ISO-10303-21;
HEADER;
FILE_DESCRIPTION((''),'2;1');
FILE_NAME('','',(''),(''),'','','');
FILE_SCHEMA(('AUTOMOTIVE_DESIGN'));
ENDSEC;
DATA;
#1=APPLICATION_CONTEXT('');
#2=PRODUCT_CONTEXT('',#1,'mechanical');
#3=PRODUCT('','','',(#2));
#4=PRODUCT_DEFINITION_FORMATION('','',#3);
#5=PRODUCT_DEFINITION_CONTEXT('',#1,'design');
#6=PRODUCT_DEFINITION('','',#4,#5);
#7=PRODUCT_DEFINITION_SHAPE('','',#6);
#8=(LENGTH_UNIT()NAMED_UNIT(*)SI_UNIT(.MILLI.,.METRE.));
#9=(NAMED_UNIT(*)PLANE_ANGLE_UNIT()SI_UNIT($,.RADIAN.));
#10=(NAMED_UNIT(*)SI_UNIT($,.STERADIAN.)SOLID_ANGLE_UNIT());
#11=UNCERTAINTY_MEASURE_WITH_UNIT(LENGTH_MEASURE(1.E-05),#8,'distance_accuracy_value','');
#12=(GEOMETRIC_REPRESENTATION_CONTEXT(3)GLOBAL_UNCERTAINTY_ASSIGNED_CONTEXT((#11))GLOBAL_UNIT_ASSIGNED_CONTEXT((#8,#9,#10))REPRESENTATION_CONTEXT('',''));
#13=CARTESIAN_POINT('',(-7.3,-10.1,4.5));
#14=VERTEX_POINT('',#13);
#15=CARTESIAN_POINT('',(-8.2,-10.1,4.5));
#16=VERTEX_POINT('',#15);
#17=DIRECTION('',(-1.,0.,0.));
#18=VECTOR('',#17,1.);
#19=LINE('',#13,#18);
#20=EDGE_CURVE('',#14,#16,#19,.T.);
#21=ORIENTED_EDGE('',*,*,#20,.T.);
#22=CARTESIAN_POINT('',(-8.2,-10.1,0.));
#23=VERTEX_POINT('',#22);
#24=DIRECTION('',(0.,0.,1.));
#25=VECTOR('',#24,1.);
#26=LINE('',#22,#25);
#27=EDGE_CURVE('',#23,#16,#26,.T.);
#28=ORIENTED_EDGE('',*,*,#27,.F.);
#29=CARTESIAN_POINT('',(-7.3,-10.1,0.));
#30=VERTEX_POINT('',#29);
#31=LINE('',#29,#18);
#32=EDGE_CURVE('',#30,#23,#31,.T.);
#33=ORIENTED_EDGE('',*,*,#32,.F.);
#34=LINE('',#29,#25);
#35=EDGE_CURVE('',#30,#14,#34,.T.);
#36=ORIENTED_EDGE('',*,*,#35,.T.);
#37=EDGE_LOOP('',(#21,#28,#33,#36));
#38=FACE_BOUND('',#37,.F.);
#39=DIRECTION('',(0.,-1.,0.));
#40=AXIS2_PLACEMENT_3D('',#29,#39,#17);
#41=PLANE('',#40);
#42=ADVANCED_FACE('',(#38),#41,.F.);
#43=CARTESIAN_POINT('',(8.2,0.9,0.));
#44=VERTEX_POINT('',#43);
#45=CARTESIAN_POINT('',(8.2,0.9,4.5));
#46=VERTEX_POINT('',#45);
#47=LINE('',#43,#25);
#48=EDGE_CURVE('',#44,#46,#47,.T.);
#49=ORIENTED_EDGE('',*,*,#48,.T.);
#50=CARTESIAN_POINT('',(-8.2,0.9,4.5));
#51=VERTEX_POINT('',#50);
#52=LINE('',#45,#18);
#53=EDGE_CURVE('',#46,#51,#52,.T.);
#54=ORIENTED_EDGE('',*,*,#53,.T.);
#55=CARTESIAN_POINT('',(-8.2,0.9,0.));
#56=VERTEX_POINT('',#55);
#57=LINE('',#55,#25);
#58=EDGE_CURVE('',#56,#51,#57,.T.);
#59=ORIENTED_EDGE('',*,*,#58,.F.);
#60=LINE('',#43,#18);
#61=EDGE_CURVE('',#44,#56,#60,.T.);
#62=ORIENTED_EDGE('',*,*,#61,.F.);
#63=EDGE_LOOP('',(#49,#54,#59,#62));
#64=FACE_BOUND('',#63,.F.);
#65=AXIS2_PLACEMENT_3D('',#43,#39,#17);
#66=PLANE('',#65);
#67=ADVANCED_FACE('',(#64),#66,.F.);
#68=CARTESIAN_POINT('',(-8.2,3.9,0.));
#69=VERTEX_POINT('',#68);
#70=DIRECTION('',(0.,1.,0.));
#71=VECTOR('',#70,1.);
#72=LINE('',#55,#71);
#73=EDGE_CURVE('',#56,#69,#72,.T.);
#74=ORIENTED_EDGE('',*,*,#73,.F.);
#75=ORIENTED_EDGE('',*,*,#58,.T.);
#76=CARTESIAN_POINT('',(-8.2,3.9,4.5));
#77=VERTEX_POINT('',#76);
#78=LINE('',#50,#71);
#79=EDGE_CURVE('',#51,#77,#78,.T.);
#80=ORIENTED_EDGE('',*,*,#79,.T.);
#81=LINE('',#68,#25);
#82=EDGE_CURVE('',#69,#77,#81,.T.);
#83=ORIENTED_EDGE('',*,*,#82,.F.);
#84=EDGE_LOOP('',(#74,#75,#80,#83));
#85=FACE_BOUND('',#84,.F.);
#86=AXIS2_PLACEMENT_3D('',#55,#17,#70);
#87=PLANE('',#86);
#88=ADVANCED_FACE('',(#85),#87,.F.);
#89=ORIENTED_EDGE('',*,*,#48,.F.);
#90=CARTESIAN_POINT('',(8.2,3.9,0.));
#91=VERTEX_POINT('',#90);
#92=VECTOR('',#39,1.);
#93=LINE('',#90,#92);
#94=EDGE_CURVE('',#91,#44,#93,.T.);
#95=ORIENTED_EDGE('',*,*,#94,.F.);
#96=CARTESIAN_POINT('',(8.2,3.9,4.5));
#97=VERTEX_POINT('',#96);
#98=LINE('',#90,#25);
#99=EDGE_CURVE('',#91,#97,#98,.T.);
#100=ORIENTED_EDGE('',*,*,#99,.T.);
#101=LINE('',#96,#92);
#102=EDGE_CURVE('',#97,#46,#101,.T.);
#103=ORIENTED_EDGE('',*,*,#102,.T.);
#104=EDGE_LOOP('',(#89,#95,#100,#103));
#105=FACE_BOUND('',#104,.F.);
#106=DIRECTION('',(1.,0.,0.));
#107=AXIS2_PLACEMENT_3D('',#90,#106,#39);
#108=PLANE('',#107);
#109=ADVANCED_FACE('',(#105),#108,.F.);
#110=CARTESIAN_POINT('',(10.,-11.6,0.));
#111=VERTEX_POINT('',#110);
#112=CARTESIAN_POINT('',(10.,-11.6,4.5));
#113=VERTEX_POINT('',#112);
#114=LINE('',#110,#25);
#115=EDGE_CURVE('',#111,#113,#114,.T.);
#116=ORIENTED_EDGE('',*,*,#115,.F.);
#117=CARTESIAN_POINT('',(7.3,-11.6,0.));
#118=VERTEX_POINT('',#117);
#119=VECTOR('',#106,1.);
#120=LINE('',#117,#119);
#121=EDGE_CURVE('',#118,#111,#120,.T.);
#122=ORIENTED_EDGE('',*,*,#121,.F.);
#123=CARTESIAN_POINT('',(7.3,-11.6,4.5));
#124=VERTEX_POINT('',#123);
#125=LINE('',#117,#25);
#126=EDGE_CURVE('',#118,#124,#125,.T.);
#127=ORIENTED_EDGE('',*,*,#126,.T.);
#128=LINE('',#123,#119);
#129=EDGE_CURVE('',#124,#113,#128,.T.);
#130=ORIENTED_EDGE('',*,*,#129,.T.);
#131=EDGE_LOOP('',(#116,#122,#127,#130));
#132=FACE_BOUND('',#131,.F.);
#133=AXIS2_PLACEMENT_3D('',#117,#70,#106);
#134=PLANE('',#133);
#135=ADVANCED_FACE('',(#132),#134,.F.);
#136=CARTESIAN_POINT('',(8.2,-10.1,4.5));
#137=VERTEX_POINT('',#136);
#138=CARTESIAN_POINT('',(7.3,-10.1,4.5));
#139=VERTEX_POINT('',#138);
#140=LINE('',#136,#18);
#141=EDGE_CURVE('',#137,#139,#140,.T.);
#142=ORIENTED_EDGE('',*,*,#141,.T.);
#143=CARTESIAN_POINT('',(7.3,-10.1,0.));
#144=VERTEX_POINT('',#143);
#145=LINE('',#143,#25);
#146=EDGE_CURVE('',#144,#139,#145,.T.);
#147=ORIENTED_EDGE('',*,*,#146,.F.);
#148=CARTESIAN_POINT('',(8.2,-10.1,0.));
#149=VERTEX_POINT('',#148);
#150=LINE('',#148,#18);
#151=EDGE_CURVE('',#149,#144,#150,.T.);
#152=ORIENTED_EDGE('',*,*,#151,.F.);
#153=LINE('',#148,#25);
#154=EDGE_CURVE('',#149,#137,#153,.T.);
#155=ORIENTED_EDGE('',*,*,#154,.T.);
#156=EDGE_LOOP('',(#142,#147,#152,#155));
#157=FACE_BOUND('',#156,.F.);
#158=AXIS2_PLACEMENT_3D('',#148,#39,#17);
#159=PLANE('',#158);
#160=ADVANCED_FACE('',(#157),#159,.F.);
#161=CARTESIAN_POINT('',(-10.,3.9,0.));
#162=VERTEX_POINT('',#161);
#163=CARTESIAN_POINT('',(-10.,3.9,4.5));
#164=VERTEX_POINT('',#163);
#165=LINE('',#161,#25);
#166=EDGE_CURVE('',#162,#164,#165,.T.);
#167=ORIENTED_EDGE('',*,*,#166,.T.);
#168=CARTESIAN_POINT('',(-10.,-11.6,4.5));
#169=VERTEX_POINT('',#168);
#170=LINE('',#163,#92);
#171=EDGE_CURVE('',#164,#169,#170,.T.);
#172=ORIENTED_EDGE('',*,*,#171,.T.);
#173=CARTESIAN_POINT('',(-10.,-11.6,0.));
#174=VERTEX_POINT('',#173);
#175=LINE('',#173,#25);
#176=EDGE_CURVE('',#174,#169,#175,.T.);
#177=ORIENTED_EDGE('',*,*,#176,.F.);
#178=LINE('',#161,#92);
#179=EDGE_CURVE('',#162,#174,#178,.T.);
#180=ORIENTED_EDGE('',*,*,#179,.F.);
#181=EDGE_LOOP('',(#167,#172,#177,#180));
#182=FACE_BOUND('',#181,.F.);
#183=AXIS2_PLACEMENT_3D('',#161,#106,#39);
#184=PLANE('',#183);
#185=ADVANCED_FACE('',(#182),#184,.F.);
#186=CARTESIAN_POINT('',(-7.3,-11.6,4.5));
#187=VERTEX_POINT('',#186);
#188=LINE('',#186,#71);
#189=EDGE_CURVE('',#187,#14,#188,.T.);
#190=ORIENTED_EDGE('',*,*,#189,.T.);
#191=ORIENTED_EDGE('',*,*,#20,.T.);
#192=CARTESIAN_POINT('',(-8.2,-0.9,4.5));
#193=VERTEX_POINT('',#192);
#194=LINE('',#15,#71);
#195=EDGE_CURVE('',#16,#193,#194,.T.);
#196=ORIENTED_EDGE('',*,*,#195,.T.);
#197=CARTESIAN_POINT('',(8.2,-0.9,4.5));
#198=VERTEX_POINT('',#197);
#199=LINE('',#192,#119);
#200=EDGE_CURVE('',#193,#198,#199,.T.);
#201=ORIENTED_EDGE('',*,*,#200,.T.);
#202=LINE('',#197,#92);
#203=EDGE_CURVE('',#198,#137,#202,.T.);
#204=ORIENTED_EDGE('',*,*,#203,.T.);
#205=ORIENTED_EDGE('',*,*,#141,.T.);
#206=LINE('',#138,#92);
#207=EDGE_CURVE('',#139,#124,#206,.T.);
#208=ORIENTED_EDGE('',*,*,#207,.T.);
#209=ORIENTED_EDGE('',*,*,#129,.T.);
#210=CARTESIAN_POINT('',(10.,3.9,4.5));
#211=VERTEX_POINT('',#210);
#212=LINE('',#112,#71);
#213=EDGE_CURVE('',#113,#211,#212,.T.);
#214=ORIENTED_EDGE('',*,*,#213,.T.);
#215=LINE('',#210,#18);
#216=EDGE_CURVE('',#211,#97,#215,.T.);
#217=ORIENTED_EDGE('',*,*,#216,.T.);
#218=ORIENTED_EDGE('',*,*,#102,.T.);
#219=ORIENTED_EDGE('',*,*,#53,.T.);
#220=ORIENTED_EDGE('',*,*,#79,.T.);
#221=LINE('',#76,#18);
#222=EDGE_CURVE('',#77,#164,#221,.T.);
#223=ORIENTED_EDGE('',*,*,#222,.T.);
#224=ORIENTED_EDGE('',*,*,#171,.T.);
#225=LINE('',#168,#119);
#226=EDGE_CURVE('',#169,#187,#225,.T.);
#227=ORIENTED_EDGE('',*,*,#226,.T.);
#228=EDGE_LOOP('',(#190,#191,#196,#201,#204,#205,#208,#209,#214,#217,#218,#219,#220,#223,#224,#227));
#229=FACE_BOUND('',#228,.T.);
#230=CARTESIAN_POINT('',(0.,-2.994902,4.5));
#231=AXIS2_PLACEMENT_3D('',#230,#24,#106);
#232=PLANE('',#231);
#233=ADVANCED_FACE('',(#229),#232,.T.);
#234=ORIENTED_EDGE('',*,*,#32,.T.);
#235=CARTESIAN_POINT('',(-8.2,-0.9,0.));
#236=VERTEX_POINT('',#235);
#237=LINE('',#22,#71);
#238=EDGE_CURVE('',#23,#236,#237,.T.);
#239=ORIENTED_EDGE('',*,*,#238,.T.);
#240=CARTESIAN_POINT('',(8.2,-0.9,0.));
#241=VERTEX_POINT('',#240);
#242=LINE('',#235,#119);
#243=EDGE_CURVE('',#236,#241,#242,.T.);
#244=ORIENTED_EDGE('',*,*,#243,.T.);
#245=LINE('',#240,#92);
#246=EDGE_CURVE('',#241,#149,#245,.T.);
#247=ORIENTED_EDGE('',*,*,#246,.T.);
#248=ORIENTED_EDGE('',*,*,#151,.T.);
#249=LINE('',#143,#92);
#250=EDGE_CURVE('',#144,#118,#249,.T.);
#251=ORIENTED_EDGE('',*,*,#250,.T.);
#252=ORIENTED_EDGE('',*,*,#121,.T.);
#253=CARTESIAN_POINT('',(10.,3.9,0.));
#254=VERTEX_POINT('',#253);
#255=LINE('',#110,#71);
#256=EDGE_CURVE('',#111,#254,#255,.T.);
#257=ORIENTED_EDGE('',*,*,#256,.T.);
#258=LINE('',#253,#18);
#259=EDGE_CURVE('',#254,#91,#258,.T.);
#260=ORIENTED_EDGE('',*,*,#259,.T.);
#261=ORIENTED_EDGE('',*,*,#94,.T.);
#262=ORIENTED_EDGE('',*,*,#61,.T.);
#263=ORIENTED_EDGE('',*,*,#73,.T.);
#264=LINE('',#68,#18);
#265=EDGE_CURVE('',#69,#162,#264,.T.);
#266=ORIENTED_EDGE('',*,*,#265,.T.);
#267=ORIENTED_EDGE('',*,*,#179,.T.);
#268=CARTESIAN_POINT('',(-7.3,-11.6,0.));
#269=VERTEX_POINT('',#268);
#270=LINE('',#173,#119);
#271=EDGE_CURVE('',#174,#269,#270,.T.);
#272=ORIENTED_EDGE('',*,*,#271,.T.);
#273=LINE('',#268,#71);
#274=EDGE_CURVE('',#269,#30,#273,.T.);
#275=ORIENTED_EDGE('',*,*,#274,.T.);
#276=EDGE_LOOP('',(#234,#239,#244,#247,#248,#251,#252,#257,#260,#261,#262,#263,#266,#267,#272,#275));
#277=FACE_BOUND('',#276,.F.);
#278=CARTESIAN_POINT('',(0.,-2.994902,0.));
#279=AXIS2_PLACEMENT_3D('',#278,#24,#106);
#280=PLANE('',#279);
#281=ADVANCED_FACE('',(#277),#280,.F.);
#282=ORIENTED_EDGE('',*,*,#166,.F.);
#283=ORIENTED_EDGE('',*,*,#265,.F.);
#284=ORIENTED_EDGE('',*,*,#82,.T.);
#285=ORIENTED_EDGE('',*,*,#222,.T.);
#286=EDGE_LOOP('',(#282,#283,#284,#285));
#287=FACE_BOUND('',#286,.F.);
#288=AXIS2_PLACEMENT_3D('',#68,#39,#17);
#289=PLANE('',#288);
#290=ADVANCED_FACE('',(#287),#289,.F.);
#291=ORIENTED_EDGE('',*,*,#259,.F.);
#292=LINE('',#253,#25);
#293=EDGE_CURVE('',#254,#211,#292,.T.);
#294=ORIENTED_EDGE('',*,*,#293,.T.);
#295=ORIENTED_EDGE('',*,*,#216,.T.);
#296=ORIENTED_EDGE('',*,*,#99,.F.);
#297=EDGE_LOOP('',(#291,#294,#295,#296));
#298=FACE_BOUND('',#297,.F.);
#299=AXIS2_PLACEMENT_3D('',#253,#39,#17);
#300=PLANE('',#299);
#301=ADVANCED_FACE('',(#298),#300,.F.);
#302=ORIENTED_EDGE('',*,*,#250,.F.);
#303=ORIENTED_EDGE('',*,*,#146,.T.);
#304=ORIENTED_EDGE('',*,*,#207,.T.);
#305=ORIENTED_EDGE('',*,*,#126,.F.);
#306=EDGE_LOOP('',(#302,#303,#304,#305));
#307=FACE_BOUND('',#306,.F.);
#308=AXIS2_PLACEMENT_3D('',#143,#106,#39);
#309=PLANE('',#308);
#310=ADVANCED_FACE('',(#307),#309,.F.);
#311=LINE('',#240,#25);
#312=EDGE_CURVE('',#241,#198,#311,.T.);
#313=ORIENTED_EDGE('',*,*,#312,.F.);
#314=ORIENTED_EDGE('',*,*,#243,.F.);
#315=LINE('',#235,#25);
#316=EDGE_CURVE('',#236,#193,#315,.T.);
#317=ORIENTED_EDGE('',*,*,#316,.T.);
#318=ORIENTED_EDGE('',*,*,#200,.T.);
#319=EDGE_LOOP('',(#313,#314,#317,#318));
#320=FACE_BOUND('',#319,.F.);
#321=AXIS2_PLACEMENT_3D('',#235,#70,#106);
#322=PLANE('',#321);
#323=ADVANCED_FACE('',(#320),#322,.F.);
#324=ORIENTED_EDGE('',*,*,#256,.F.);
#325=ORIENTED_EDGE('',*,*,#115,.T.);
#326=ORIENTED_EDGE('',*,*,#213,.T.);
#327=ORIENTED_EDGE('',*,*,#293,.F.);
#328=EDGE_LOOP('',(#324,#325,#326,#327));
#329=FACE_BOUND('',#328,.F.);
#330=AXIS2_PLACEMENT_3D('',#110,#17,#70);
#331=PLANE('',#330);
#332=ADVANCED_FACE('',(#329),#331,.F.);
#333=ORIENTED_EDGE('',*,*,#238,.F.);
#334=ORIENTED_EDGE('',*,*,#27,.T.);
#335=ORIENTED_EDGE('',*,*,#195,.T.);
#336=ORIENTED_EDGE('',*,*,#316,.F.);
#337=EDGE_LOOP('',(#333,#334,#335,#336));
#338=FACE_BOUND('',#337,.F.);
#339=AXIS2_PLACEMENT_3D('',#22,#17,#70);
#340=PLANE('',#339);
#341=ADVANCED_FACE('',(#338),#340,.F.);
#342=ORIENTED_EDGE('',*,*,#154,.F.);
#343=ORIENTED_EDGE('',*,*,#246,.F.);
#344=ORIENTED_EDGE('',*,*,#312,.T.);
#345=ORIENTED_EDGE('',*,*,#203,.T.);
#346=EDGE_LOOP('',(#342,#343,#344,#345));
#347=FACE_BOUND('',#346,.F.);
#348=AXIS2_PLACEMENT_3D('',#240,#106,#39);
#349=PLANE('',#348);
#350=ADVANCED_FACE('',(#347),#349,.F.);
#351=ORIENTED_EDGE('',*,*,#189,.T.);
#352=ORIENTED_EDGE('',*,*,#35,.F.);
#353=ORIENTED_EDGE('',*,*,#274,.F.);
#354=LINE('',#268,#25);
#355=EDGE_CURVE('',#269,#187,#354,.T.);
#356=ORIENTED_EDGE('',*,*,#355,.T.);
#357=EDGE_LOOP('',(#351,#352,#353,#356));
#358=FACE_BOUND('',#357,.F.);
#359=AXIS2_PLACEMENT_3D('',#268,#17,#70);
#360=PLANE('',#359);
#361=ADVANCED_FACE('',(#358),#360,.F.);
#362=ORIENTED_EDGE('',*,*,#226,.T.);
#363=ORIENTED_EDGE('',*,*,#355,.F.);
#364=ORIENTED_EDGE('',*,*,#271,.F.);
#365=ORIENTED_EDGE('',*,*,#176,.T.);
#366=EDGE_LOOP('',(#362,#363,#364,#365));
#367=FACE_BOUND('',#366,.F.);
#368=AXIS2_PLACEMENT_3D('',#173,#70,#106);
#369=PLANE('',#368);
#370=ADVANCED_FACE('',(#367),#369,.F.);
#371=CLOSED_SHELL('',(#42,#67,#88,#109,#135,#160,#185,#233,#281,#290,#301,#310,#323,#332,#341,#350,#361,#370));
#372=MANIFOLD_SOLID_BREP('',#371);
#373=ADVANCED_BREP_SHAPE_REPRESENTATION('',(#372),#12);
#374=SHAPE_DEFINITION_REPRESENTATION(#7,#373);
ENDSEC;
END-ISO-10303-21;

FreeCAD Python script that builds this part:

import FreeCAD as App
import Part
import Sketcher

V = App.Vector
Q = App.Units.Quantity


def add_polygon(sketch, points):
    """Adds a closed chain of lines whose ends are joined by coincident constraints."""
    first, n = sketch.GeometryCount, len(points)
    for a, b in zip(points, points[1:] + points[:1]):
        sketch.addGeometry(Part.LineSegment(App.Vector(*a, 0), App.Vector(*b, 0)), False)
    for i in range(n):
        sketch.addConstraint(Sketcher.Constraint("Coincident", first + i, 2, first + (i + 1) % n, 1))

doc = App.newDocument("Part")
body = doc.addObject("PartDesign::Body", "Body")

sketch1 = body.newObject("Sketcher::SketchObject", "Sketch")
sketch1.AttachmentSupport = (doc.getObject("XY_Plane"), [""])
sketch1.MapMode = "FlatFace"
add_polygon(sketch1, [(8.2, 0.9), (-8.2, 0.9), (-8.2, 3.9), (-10, 3.9), (-10, -11.6), (-7.3, -11.6), (-7.3, -10.1), (-8.2, -10.1), (-8.2, -0.9), (8.2, -0.9), (8.2, -10.1), (7.3, -10.1), (7.3, -11.6), (10, -11.6), (10, 3.9), (8.2, 3.9)])
sketch1.addConstraint(Sketcher.Constraint("Horizontal", 0))
sketch1.addConstraint(Sketcher.Constraint("Vertical", 1))
sketch1.addConstraint(Sketcher.Constraint("Horizontal", 2))
sketch1.addConstraint(Sketcher.Constraint("Vertical", 3))
sketch1.addConstraint(Sketcher.Constraint("Horizontal", 4))
sketch1.addConstraint(Sketcher.Constraint("Vertical", 5))
sketch1.addConstraint(Sketcher.Constraint("Horizontal", 6))
sketch1.addConstraint(Sketcher.Constraint("Vertical", 7))
sketch1.addConstraint(Sketcher.Constraint("Horizontal", 8))
sketch1.addConstraint(Sketcher.Constraint("Vertical", 9))
sketch1.addConstraint(Sketcher.Constraint("Horizontal", 10))
sketch1.addConstraint(Sketcher.Constraint("Vertical", 11))
sketch1.addConstraint(Sketcher.Constraint("Horizontal", 12))
sketch1.addConstraint(Sketcher.Constraint("Vertical", 13))
sketch1.addConstraint(Sketcher.Constraint("Horizontal", 14))
sketch1.addConstraint(Sketcher.Constraint("Vertical", 15))
sketch1.addConstraint(Sketcher.Constraint("Symmetric", 0, 2, 8, 2, -1, 1))
sketch1.addConstraint(Sketcher.Constraint("Symmetric", 6, 2, 9, 2, -2))
sketch1.addConstraint(Sketcher.Constraint("Symmetric", 4, 2, 11, 2, -2))
sketch1.addConstraint(Sketcher.Constraint("Symmetric", 2, 2, 13, 2, -2))
sketch1.addConstraint(Sketcher.Constraint("Vertical", 9, 2, 14, 2))
sketch1.addConstraint(Sketcher.Constraint("DistanceY", 1, 1, 1, 2, Q("3 mm")))
sketch1.addConstraint(Sketcher.Constraint("DistanceX", 0, 2, 0, 1, Q("16.4 mm")))
sketch1.addConstraint(Sketcher.Constraint("DistanceX", 2, 2, 2, 1, Q("1.8 mm")))
sketch1.addConstraint(Sketcher.Constraint("DistanceX", 4, 1, 4, 2, Q("2.7 mm")))
sketch1.addConstraint(Sketcher.Constraint("DistanceY", 3, 2, 3, 1, Q("15.5 mm")))
sketch1.addConstraint(Sketcher.Constraint("DistanceY", 5, 1, 5, 2, Q("1.5 mm")))
sketch1.addConstraint(Sketcher.Constraint("DistanceY", 7, 1, 7, 2, Q("9.2 mm")))
pad1 = body.newObject("PartDesign::Pad", "Pad")
pad1.Profile = sketch1
pad1.Length = 4.5

doc.recompute()
